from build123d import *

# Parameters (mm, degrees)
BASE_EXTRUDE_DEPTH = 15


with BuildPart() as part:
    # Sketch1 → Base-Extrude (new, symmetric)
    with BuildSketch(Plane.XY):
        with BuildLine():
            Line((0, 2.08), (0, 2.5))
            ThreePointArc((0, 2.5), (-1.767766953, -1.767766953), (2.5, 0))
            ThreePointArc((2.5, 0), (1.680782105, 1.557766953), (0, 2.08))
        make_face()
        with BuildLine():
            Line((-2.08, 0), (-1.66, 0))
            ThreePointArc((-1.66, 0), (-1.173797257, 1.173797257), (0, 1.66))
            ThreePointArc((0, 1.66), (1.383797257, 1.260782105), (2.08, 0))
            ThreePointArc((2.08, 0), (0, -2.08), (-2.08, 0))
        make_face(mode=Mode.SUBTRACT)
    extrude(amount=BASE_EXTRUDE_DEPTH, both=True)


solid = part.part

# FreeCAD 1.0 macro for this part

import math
import FreeCAD as App
import Part
import Sketcher
from FreeCAD import Vector

doc = App.newDocument("Part")
body = doc.addObject("PartDesign::Body", "Body")

# Sketch on XY plane
sketch1 = doc.addObject("Sketcher::SketchObject", "Sketch")
body.addObject(sketch1)
sketch1.AttachmentSupport = (doc.XY_Plane, [""])
sketch1.MapMode = "FlatFace"
sketch1.addGeometry([
    Part.LineSegment(Vector(0, 2.08, 0), Vector(0, 2.5, 0)),  # 0
    Part.ArcOfCircle(Part.Circle(Vector(0, 0, 0), Vector(0, 0, 1), 2.5), math.radians(90), math.radians(360)),  # 1
    Part.ArcOfCircle(Part.Circle(Vector(0.21, -0.21, 0), Vector(0, 0, 1), 2.299609), math.radians(5.239544), math.radians(95.239544)),  # 2
    Part.ArcOfCircle(Part.Circle(Vector(0, 0, 0), Vector(0, 0, 1), 2.08), math.radians(180), math.radians(360)),  # 3
    Part.LineSegment(Vector(-2.08, 0, 0), Vector(-1.66, 0, 0)),  # 4
    Part.ArcOfCircle(Part.Circle(Vector(0, 0, 0), Vector(0, 0, 1), 1.66), math.radians(90), math.radians(180)),  # 5
    Part.ArcOfCircle(Part.Circle(Vector(0.21, -0.21, 0), Vector(0, 0, 1), 1.881754), math.radians(6.40744), math.radians(96.40744)),  # 6
], False)
sketch1.addConstraint([
    Sketcher.Constraint("Coincident", 0, 2, 1, 1),
    Sketcher.Constraint("Coincident", 1, 2, 2, 1),
    Sketcher.Constraint("Coincident", 2, 2, 0, 1),
    Sketcher.Constraint("Coincident", 3, 1, 4, 1),
    Sketcher.Constraint("Coincident", 4, 2, 5, 2),
    Sketcher.Constraint("Coincident", 5, 1, 6, 2),
    Sketcher.Constraint("Coincident", 6, 1, 3, 2),
    Sketcher.Constraint("Vertical", 0),
    Sketcher.Constraint("Horizontal", 4),
    Sketcher.Constraint("Coincident", 1, 3, -1, 1),
    Sketcher.Constraint("Coincident", 3, 3, -1, 1),
    Sketcher.Constraint("Coincident", 5, 3, -1, 1),
    Sketcher.Constraint("Coincident", 6, 3, 2, 3),
    Sketcher.Constraint("PointOnObject", 0, 2, -2),
    Sketcher.Constraint("PointOnObject", 1, 2, -1),
    Sketcher.Constraint("PointOnObject", 3, 1, -1),
    Sketcher.Constraint("PointOnObject", 5, 1, -2),
    Sketcher.Constraint("PointOnObject", 6, 1, -1),
    Sketcher.Constraint("Equal", 4, 0),
    Sketcher.Constraint("Radius", 1, 2.5),
    Sketcher.Constraint("Radius", 3, 2.08),
    Sketcher.Constraint("Radius", 5, 1.66),
])
pad1 = doc.addObject("PartDesign::Pad", "Pad")
body.addObject(pad1)
pad1.Profile = sketch1
pad1.Length = 30
pad1.Midplane = True

doc.recompute()
